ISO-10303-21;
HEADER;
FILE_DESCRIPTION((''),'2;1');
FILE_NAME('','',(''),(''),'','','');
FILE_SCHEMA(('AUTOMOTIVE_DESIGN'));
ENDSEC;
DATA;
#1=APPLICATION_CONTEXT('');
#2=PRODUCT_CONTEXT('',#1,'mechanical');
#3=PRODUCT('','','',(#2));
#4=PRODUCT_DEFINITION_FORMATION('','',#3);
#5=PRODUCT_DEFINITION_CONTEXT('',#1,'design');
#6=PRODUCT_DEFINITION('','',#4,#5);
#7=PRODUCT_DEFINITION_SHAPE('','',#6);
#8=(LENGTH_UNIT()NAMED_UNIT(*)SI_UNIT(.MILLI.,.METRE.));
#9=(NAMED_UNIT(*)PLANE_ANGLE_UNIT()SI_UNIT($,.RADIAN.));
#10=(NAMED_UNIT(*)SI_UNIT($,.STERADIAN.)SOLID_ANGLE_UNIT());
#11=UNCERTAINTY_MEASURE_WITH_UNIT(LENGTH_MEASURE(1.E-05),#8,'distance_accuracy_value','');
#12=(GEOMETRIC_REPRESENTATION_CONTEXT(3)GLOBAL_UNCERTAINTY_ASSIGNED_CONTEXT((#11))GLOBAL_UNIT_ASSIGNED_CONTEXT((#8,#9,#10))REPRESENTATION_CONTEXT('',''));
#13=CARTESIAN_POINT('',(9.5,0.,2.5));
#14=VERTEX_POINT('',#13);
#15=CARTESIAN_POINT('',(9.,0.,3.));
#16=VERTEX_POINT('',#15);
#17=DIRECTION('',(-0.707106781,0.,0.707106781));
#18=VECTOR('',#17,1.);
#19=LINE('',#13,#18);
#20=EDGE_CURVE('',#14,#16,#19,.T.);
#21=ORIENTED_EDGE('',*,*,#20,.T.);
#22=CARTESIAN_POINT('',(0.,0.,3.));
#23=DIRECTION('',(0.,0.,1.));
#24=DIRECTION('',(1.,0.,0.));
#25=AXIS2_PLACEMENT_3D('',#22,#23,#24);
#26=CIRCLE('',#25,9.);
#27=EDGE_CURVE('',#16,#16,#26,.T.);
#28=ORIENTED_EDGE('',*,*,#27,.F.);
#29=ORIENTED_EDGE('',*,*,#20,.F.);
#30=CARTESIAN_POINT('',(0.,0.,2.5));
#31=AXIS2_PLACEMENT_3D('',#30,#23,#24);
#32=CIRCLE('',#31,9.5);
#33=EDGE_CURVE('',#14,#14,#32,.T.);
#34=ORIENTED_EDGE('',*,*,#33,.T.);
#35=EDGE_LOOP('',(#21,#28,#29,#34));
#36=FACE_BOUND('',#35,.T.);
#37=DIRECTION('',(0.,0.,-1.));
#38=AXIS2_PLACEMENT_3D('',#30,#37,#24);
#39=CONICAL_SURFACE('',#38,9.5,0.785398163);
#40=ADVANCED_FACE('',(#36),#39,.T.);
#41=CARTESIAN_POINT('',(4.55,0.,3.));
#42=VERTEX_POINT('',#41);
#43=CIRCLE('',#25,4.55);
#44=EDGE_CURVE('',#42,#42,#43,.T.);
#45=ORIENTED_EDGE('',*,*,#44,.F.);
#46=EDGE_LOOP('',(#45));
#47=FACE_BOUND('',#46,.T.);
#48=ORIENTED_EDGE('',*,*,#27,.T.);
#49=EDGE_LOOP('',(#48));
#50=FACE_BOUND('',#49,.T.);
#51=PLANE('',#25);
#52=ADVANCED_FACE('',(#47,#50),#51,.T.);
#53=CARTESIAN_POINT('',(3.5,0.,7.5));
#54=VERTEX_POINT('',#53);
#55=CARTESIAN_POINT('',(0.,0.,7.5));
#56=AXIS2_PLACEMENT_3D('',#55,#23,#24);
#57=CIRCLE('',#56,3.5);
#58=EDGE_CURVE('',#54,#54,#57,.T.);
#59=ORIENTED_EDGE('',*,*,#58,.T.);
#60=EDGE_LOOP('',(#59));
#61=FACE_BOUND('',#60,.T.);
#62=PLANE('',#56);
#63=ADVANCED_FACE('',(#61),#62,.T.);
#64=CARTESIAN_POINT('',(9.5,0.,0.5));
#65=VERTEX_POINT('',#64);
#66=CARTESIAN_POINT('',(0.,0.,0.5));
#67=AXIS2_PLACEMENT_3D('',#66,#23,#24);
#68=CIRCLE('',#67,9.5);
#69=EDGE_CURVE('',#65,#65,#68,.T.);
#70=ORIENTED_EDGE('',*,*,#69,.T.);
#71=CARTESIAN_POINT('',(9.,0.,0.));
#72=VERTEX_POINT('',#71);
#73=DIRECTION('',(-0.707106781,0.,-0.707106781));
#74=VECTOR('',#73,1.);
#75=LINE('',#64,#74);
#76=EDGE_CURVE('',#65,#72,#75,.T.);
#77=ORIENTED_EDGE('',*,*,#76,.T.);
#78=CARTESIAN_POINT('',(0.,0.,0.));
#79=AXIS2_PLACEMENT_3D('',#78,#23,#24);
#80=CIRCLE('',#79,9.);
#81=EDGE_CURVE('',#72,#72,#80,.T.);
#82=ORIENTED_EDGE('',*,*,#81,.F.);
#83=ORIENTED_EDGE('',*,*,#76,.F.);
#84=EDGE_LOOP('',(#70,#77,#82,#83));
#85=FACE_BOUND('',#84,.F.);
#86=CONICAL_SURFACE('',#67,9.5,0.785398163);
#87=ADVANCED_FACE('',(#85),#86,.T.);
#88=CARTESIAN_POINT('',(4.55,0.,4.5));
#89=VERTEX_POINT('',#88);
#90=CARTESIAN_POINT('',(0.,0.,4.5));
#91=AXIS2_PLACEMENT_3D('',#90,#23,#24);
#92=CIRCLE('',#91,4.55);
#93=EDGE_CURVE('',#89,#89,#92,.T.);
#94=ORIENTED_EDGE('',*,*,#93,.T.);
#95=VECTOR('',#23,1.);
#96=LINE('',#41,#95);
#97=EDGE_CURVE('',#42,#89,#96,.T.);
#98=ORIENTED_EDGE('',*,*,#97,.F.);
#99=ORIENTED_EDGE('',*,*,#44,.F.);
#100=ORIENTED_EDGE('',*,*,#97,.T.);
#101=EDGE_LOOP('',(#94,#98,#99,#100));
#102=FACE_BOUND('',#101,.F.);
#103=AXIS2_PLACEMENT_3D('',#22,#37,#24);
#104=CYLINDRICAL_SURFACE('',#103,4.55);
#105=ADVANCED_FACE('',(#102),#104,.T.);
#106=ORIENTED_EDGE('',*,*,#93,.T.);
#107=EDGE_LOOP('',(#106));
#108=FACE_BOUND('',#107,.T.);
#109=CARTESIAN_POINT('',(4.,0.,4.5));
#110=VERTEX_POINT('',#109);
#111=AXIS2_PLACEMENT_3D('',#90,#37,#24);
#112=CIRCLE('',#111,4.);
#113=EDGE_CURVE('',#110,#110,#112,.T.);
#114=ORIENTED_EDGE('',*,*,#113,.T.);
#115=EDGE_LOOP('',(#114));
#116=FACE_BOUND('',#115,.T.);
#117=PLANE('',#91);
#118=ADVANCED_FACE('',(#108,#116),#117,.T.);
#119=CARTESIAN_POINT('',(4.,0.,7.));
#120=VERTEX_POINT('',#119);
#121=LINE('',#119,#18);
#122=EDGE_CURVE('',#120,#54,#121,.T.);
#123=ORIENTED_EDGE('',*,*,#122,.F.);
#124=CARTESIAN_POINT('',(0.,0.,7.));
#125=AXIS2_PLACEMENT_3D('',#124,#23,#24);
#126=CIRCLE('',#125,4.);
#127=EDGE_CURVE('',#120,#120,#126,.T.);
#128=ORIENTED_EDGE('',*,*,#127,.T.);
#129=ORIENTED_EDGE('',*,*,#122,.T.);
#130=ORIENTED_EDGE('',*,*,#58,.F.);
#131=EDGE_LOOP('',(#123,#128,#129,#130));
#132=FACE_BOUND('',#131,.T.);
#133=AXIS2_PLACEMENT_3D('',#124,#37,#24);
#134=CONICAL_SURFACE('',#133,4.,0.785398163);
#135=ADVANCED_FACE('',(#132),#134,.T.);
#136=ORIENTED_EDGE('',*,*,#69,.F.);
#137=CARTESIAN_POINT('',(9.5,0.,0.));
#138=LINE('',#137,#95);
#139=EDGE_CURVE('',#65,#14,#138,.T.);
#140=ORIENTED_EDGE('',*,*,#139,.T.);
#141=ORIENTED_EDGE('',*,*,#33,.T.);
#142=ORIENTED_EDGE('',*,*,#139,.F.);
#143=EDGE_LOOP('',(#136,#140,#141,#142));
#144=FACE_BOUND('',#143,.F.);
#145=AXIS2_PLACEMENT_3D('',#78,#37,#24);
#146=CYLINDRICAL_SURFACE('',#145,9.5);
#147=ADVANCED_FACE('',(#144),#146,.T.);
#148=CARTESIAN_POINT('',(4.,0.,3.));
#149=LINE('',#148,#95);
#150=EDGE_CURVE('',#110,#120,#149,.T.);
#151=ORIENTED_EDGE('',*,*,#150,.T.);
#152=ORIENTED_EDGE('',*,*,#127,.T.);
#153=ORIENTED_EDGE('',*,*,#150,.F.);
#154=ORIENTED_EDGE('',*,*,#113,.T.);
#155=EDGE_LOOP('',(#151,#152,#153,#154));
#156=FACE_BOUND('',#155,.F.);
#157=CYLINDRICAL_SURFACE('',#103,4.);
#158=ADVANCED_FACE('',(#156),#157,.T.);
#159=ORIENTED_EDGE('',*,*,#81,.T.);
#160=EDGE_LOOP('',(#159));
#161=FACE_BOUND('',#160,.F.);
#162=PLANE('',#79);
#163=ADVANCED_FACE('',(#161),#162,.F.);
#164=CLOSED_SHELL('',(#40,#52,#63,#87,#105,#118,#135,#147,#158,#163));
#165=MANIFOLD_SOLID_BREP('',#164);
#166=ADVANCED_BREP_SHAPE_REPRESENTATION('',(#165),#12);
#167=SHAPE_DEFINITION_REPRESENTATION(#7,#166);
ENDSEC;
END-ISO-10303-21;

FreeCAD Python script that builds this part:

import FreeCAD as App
import Part
import Sketcher


def edges_at(feature, points):
    """Names of the edges that pass closest to the given points."""
    edges = feature.Shape.Edges
    near = lambda p: min(range(len(edges)), key=lambda i: edges[i].distToShape(Part.Vertex(*p))[0])
    return sorted({f"Edge{near(p) + 1}" for p in points})

doc = App.newDocument("Part")
params = doc.addObject("Spreadsheet::Sheet", "Params")
for row, (alias, value) in enumerate([
    ("sketch1_diameter", "19 mm"),
    ("pad1_length", "3 mm"),
    ("sketch2_diameter", "8 mm"),
    ("pad2_length", "4.5 mm"),
    ("chamfer_size", "0.5 mm"),
    ("sketch3_diameter", "9.1 mm"),
    ("pad3_length", "1.5 mm"),
], start=1):
    params.set(f"A{row}", alias)
    params.set(f"B{row}", "=" + value)
    params.setAlias(f"B{row}", alias)

body = doc.addObject("PartDesign::Body", "Body")

# Sketch on XY plane
sketch1 = body.newObject("Sketcher::SketchObject", "Sketch")
sketch1.AttachmentSupport = (doc.getObject("XY_Plane"), [""])
sketch1.MapMode = "FlatFace"
sketch1.addGeometry(Part.Circle(App.Vector(0, 0, 0), App.Vector(0, 0, 1), 10), False)
sketch1.addConstraint([
    Sketcher.Constraint("Coincident", 0, 3, -1, 1),
    Sketcher.Constraint("Diameter", 0, 19.0),
])
sketch1.setExpression("Constraints[1]", "Params.sketch1_diameter")
pad1 = body.newObject("PartDesign::Pad", "Pad")
pad1.Profile = sketch1
pad1.setExpression("Length", "Params.pad1_length")

# Sketch on XY plane
sketch2 = body.newObject("Sketcher::SketchObject", "Sketch001")
sketch2.AttachmentSupport = (doc.getObject("XY_Plane"), [""])
sketch2.MapMode = "FlatFace"
sketch2.AttachmentOffset = App.Placement(App.Vector(0, 0, 3), App.Rotation())
sketch2.addGeometry(Part.Circle(App.Vector(0, 0, 0), App.Vector(0, 0, 1), 4), False)
sketch2.addConstraint([
    Sketcher.Constraint("Coincident", 0, 3, -1, 1),
    Sketcher.Constraint("Diameter", 0, 8.0),
])
sketch2.setExpression("Constraints[1]", "Params.sketch2_diameter")
pad2 = body.newObject("PartDesign::Pad", "Pad001")
pad2.Profile = sketch2
pad2.setExpression("Length", "Params.pad2_length")
doc.recompute()

chamfer = body.newObject("PartDesign::Chamfer", "Chamfer")
chamfer.Base = (pad2, edges_at(pad2, [(-4, 0, 7.5), (-9.5, 0, 3), (-9.5, 0, 0)]))
chamfer.setExpression("Size", "Params.chamfer_size")

# Sketch on XY plane
sketch3 = body.newObject("Sketcher::SketchObject", "Sketch002")
sketch3.AttachmentSupport = (doc.getObject("XY_Plane"), [""])
sketch3.MapMode = "FlatFace"
sketch3.AttachmentOffset = App.Placement(App.Vector(0, 0, 3), App.Rotation())
sketch3.addGeometry(Part.Circle(App.Vector(0, 0, 0), App.Vector(0, 0, 1), 4.5), False)
sketch3.addConstraint([
    Sketcher.Constraint("Coincident", 0, 3, -1, 1),
    Sketcher.Constraint("Diameter", 0, 9.1),
])
sketch3.setExpression("Constraints[1]", "Params.sketch3_diameter")
pad3 = body.newObject("PartDesign::Pad", "Pad002")
pad3.Profile = sketch3
pad3.setExpression("Length", "Params.pad3_length")

doc.recompute()
